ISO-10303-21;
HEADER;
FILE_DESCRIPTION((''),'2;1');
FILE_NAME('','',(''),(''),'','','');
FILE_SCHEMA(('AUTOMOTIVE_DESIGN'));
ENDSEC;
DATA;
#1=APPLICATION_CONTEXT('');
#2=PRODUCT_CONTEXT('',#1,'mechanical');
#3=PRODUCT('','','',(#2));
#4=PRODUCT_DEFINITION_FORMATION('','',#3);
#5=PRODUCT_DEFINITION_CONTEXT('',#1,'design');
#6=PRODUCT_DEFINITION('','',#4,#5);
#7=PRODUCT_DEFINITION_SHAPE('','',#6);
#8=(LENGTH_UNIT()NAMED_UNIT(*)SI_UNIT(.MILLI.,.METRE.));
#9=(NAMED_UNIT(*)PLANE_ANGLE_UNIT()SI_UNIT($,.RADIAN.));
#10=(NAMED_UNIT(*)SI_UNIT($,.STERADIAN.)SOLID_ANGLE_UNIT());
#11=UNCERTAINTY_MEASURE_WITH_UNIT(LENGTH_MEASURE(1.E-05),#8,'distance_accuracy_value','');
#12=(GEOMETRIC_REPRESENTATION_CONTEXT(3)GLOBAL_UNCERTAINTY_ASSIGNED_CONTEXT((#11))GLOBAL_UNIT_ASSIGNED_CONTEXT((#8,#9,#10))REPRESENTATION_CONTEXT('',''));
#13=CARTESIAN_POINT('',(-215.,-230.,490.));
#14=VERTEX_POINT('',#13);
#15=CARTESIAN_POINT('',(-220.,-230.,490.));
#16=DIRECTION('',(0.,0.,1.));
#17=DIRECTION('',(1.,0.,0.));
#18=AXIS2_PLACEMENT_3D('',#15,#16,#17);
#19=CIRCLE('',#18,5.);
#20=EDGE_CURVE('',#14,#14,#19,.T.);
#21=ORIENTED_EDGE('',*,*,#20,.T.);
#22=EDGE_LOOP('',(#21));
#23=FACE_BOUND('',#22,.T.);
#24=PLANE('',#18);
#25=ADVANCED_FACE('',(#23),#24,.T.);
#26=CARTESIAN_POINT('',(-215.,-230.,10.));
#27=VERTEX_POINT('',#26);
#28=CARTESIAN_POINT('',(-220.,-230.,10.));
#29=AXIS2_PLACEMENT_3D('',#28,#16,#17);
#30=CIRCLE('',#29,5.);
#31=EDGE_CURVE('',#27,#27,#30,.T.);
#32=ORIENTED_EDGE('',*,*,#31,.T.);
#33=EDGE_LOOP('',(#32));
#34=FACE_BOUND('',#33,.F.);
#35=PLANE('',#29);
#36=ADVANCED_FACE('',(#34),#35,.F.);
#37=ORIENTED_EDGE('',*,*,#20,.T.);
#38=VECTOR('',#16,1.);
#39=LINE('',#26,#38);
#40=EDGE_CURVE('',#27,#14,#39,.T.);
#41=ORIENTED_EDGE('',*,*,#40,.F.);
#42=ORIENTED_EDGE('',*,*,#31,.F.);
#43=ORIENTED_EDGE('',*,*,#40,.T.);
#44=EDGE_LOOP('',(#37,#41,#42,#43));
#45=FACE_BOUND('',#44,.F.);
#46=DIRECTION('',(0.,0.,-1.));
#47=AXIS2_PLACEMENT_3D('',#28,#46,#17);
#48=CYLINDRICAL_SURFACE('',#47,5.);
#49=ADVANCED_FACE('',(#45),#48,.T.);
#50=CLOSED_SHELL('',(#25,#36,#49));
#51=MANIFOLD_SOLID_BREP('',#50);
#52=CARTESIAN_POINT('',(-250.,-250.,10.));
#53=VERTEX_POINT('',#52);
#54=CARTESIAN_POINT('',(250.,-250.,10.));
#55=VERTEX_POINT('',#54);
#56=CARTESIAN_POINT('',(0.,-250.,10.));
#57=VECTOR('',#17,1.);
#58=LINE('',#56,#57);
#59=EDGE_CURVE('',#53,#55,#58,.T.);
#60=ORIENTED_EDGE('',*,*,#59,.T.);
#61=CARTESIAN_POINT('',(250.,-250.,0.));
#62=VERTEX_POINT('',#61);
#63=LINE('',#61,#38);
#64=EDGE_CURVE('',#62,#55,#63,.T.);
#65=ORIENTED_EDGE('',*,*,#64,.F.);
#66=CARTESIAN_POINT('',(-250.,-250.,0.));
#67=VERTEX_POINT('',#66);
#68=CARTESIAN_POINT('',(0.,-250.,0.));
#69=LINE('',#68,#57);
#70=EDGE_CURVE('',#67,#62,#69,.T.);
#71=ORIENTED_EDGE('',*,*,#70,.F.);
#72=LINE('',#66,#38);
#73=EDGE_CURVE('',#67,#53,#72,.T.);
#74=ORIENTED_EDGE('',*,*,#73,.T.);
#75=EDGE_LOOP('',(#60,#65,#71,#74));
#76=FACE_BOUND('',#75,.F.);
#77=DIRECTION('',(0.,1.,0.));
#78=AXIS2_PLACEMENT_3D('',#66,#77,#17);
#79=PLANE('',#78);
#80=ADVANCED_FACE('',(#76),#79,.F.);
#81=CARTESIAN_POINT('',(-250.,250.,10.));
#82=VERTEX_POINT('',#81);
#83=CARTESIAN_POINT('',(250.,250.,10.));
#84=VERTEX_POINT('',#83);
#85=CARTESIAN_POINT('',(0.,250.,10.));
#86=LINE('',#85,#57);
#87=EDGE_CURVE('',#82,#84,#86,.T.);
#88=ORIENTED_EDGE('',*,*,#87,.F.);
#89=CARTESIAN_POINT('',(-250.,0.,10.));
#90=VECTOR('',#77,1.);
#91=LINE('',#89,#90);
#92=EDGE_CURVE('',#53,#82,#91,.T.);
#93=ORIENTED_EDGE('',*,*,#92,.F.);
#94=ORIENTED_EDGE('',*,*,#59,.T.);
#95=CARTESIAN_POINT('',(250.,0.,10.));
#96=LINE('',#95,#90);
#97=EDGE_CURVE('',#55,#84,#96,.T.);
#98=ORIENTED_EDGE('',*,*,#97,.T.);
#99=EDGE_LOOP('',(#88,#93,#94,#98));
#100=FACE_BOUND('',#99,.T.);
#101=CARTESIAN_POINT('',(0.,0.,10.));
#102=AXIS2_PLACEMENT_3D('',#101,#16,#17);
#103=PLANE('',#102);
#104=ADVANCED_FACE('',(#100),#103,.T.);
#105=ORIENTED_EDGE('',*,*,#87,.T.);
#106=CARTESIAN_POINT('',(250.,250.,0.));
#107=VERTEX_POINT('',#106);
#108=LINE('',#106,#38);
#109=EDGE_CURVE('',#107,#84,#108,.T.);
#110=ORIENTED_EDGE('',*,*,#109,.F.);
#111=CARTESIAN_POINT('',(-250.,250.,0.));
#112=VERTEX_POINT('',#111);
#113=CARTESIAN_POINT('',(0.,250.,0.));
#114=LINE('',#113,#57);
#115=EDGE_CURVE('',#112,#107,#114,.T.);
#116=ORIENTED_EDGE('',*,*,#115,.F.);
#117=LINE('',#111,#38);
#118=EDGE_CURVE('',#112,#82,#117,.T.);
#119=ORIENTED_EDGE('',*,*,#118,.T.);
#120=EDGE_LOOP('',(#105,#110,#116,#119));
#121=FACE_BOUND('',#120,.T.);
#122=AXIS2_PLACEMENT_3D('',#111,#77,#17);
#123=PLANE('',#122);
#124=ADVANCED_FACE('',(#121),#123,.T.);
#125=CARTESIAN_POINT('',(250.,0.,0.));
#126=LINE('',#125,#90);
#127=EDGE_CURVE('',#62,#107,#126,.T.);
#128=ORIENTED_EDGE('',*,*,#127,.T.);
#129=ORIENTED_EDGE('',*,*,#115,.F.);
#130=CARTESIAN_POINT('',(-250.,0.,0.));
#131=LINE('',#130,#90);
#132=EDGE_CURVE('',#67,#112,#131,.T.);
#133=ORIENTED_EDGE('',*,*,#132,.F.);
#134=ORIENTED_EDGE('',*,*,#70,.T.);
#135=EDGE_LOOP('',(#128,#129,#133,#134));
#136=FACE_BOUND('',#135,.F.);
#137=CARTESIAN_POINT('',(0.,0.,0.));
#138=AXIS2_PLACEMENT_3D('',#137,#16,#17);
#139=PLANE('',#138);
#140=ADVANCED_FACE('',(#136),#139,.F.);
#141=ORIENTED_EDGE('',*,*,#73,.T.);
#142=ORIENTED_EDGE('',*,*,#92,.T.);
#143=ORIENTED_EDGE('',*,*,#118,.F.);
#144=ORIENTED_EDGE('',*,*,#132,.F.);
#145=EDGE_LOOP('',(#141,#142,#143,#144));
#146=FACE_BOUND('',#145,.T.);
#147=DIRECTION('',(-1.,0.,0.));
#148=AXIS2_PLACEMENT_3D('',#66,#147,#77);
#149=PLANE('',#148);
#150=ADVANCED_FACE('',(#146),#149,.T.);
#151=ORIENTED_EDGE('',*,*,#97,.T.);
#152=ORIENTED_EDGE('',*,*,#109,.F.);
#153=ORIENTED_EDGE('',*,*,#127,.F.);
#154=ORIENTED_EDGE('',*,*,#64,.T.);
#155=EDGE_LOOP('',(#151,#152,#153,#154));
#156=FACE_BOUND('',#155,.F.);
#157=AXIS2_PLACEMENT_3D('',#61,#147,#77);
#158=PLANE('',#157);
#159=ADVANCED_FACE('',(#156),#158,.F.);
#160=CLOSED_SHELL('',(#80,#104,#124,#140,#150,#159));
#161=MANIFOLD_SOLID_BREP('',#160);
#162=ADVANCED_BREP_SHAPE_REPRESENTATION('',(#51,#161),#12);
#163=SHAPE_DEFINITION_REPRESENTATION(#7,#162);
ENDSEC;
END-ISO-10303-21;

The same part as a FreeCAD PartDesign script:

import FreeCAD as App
import Part
import Sketcher
from FreeCAD import Vector


def add_polygon(sketch, points):
    """Adds a closed chain of lines whose ends are joined by coincident constraints."""
    first, n = sketch.GeometryCount, len(points)
    for a, b in zip(points, points[1:] + points[:1]):
        sketch.addGeometry(Part.LineSegment(App.Vector(*a, 0), App.Vector(*b, 0)), False)
    for i in range(n):
        sketch.addConstraint(Sketcher.Constraint("Coincident", first + i, 2, first + (i + 1) % n, 1))

doc = App.newDocument("Part")
body = doc.addObject("PartDesign::Body", "Body")

sketch1 = body.newObject("Sketcher::SketchObject", "Sketch")
sketch1.AttachmentSupport = (doc.getObject("XY_Plane"), [""])
sketch1.MapMode = "FlatFace"
add_polygon(sketch1, [(-250, 250), (-250, -250), (250, -250), (250, 250)])
sketch1.addConstraint([
    Sketcher.Constraint("Vertical", 0),
    Sketcher.Constraint("Horizontal", 1),
    Sketcher.Constraint("Vertical", 2),
    Sketcher.Constraint("Horizontal", 3),
    Sketcher.Constraint("Symmetric", 0, 2, 2, 2, -1, 1),
    Sketcher.Constraint("Equal", 3, 0),
    Sketcher.Constraint("DistanceX", 1, 1, 1, 2, 500.0),
])
pad1 = body.newObject("PartDesign::Pad", "Pad")
pad1.Profile = sketch1
pad1.Length = 10
body2 = doc.addObject("PartDesign::Body", "Body001")

sketch2 = body2.newObject("Sketcher::SketchObject", "Sketch001")
sketch2.AttachmentSupport = (doc.getObject("XY_Plane001"), [""])
sketch2.MapMode = "FlatFace"
sketch2.AttachmentOffset = App.Placement(Vector(0, 0, 10), App.Rotation())
sketch2.addGeometry(Part.Circle(Vector(-220, -230, 0), Vector(0, 0, 1), 5), False)
sketch2.addConstraint([
    Sketcher.Constraint("Diameter", 0, 10.0),
    Sketcher.Constraint("DistanceX", 0, 3, -1, 1, 220.0),
    Sketcher.Constraint("DistanceY", 0, 3, -1, 1, 230.0),
])
pad2 = body2.newObject("PartDesign::Pad", "Pad001")
pad2.Profile = sketch2
pad2.Length = 480

doc.recompute()
